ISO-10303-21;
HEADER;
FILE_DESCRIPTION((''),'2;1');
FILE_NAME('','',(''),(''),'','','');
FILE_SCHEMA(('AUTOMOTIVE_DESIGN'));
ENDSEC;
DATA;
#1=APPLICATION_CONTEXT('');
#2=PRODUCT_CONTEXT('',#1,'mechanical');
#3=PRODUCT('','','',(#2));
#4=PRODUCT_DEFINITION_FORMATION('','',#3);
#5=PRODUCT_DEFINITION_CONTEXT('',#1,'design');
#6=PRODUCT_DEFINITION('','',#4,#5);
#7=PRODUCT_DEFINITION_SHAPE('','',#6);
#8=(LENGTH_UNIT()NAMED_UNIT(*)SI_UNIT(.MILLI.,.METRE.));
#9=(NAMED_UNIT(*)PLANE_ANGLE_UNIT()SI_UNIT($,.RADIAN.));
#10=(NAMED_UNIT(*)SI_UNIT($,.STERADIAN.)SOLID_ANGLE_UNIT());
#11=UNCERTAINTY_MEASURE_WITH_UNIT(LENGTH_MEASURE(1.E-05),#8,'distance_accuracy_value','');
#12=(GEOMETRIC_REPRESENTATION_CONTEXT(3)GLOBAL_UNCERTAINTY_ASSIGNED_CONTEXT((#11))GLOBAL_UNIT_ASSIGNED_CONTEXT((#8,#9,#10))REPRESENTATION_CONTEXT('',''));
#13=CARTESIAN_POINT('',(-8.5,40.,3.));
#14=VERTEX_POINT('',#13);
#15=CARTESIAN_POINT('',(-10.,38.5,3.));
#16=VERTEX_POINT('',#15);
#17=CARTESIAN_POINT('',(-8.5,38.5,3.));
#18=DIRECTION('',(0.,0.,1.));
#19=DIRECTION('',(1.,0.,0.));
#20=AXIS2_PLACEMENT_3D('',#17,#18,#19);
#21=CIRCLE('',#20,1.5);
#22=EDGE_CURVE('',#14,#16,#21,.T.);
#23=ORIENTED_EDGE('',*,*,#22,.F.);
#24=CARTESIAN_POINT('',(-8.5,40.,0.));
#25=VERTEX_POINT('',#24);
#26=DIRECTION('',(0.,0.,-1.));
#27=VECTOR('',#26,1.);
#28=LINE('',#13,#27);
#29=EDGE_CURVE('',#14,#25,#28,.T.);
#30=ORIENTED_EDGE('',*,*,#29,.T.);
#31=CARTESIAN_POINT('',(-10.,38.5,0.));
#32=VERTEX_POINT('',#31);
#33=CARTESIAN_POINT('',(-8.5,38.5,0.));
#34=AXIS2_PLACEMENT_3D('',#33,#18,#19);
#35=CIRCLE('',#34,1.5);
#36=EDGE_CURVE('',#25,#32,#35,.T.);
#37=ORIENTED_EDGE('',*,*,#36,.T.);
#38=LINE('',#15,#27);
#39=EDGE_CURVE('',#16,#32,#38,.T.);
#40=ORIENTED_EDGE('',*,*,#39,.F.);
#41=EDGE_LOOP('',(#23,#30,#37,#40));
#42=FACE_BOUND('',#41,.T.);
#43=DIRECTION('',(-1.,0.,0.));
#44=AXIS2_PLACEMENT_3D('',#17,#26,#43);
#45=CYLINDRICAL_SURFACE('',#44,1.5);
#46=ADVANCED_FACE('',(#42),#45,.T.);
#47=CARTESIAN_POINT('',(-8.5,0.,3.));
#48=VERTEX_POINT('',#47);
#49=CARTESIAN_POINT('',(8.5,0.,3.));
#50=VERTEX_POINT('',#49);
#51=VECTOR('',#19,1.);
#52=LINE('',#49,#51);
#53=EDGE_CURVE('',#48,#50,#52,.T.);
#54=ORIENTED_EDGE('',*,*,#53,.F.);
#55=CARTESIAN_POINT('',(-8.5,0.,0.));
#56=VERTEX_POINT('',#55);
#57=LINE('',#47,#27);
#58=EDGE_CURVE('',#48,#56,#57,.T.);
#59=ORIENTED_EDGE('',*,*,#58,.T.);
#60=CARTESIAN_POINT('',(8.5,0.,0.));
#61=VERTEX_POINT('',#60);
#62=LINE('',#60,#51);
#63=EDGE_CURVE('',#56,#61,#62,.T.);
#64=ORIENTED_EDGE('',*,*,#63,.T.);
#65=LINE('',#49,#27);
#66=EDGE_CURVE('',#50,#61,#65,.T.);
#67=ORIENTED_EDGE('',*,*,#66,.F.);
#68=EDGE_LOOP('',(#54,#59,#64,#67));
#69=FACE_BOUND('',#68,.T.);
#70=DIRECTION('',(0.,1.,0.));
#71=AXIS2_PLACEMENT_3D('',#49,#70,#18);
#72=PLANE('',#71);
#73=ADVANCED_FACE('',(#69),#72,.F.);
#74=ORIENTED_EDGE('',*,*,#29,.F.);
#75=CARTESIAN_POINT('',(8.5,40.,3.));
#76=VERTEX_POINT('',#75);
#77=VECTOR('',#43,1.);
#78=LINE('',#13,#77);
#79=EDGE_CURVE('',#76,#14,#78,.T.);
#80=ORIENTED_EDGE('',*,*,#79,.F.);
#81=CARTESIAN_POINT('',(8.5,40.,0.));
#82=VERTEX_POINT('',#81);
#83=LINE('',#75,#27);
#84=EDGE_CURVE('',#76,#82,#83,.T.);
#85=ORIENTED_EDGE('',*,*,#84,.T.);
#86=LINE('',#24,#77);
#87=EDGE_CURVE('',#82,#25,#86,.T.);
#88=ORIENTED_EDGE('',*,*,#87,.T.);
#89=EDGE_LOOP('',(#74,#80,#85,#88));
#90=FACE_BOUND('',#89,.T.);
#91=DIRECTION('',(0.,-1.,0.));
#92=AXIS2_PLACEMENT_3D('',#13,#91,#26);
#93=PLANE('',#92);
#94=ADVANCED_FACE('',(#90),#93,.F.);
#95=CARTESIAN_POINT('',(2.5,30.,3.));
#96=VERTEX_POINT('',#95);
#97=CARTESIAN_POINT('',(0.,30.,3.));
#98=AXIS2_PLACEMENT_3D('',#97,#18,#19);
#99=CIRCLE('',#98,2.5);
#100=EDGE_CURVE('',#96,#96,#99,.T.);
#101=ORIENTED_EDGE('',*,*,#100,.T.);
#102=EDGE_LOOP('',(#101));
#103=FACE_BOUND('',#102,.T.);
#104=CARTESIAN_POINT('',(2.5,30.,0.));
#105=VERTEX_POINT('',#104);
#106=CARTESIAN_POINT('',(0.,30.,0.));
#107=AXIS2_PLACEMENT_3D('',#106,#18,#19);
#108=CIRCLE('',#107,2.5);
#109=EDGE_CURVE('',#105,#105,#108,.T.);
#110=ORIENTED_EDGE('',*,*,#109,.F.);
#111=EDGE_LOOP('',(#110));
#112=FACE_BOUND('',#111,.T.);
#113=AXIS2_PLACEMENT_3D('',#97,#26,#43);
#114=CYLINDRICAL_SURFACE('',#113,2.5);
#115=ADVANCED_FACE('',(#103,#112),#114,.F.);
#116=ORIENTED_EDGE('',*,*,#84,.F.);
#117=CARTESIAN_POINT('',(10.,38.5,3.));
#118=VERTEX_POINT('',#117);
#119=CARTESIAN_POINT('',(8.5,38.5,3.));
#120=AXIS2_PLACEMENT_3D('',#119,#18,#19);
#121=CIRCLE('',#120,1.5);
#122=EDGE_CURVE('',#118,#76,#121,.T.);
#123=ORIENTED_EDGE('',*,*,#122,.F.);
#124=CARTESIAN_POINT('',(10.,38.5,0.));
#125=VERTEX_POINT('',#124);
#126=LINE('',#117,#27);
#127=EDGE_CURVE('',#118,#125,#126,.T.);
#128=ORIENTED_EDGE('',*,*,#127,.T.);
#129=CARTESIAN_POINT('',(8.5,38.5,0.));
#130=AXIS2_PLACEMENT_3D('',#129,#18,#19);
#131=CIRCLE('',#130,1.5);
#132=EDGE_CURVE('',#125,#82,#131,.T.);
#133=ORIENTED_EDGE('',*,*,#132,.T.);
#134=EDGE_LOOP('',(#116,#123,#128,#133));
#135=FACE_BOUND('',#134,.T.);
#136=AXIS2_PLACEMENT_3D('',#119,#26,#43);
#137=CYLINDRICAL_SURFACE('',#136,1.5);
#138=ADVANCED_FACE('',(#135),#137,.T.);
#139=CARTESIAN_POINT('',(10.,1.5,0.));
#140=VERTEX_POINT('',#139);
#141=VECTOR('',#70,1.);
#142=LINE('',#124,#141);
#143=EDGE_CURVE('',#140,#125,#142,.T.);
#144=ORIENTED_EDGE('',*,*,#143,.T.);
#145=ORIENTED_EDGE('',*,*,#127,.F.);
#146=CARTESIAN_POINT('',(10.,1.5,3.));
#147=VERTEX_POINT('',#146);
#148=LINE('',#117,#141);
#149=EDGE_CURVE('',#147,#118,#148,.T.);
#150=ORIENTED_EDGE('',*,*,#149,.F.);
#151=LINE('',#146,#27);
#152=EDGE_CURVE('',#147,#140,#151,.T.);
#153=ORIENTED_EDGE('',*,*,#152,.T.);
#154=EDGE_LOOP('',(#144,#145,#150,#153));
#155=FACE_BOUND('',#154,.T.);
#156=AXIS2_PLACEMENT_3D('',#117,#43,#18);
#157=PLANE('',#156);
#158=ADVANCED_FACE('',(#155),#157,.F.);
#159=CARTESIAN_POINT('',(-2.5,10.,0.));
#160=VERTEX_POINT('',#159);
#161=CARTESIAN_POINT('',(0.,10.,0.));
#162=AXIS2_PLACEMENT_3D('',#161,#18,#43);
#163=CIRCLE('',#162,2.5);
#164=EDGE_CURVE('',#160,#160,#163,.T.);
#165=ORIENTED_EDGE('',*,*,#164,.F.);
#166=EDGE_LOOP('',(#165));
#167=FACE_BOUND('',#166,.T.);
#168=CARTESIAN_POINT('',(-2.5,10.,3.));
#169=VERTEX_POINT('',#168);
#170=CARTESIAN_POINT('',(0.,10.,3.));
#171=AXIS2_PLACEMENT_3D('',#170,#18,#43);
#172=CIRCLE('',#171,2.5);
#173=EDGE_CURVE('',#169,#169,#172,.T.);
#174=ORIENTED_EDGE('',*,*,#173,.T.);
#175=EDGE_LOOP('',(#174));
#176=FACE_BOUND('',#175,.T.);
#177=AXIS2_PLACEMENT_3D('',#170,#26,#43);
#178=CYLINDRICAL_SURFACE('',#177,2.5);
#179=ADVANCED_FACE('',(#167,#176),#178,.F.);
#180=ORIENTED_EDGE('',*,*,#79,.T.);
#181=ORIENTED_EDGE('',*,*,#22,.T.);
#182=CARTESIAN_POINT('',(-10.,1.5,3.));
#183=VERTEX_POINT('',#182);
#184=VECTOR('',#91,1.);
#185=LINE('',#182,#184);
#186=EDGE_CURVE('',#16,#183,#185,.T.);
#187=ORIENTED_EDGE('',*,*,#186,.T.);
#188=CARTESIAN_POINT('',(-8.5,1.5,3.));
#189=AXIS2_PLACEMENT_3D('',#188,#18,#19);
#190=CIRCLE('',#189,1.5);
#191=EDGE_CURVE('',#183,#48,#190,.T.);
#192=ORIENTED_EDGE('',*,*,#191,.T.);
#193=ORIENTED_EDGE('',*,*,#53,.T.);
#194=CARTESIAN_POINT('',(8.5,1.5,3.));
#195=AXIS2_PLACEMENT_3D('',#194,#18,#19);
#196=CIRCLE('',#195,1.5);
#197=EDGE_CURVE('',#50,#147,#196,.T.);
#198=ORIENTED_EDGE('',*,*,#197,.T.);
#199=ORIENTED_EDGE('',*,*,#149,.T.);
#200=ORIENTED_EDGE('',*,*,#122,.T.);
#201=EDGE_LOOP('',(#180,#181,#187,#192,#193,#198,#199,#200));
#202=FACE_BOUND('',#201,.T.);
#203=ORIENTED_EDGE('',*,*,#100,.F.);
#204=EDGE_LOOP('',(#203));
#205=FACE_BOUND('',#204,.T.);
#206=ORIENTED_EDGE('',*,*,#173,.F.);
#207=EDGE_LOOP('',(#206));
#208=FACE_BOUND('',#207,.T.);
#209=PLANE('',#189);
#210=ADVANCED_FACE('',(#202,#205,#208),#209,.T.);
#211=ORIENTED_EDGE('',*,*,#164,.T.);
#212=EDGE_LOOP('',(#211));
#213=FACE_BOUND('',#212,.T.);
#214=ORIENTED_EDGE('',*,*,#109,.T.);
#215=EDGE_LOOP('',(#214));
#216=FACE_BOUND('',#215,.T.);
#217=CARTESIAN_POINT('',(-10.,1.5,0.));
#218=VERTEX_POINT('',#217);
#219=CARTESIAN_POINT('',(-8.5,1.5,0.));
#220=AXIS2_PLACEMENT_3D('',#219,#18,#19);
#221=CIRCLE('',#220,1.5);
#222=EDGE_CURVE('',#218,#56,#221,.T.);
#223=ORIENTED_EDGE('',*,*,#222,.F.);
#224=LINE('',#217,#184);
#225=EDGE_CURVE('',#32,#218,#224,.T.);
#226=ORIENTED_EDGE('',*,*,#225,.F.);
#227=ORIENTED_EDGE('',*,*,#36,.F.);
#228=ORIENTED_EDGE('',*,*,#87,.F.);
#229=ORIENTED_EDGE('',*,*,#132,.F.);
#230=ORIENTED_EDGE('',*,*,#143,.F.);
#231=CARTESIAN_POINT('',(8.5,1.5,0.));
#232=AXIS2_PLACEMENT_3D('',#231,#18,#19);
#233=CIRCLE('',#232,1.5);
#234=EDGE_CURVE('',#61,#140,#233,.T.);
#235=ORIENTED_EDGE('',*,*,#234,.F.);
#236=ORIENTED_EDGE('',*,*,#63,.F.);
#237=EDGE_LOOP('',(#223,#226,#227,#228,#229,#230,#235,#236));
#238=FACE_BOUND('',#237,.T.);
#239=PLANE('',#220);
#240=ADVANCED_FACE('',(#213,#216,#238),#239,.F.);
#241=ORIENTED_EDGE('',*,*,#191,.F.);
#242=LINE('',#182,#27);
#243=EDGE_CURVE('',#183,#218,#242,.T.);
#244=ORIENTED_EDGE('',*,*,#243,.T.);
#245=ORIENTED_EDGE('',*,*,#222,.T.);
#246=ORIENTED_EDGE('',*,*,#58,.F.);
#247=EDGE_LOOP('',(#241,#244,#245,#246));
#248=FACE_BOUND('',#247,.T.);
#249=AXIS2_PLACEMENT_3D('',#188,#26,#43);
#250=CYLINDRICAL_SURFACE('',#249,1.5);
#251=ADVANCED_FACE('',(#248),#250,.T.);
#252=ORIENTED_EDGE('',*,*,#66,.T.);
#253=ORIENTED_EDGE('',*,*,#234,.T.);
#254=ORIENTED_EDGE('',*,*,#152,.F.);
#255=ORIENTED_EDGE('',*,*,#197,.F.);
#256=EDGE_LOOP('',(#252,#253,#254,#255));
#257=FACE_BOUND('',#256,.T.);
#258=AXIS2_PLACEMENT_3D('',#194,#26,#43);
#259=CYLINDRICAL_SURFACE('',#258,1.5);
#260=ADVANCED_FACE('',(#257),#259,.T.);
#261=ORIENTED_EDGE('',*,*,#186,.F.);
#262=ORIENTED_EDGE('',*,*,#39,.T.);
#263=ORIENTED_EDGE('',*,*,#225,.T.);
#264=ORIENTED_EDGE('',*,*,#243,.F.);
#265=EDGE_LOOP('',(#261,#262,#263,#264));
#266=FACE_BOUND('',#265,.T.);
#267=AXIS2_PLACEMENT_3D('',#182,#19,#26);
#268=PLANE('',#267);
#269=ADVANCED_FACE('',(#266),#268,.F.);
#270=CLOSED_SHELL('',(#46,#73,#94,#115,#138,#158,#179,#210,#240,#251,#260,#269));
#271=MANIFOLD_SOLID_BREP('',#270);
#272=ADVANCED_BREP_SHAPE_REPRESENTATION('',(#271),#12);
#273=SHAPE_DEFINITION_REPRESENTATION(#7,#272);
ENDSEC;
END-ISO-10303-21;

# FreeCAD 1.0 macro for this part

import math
import FreeCAD as App
import Part
import Sketcher

V = App.Vector

doc = App.newDocument("Part")
body = doc.addObject("PartDesign::Body", "Body")

sketch1 = doc.addObject("Sketcher::SketchObject", "Sketch")
body.addObject(sketch1)
sketch1.AttachmentSupport = (doc.XY_Plane, [""])
sketch1.MapMode = "FlatFace"
sketch1.addGeometry(Part.LineSegment(V(-8.5, 0, 0), V(8.5, 0, 0)), False)
sketch1.addGeometry(Part.ArcOfCircle(Part.Circle(V(8.5, 1.5, 0), V(0, 0, 1), 1.5), math.radians(-90), math.radians(0)), False)
sketch1.addGeometry(Part.LineSegment(V(10, 1.5, 0), V(10, 38.5, 0)), False)
sketch1.addGeometry(Part.ArcOfCircle(Part.Circle(V(8.5, 38.5, 0), V(0, 0, 1), 1.5), math.radians(0), math.radians(90)), False)
sketch1.addGeometry(Part.LineSegment(V(8.5, 40, 0), V(-8.5, 40, 0)), False)
sketch1.addGeometry(Part.ArcOfCircle(Part.Circle(V(-8.5, 38.5, 0), V(0, 0, 1), 1.5), math.radians(90), math.radians(180)), False)
sketch1.addGeometry(Part.LineSegment(V(-10, 38.5, 0), V(-10, 1.5, 0)), False)
sketch1.addGeometry(Part.ArcOfCircle(Part.Circle(V(-8.5, 1.5, 0), V(0, 0, 1), 1.5), math.radians(180), math.radians(270)), False)
sketch1.addGeometry(Part.Circle(V(0, 10, 0), V(0, 0, 1), 2.5), False)
sketch1.addGeometry(Part.Circle(V(0, 30, 0), V(0, 0, 1), 2.5), False)
sketch1.addConstraint(Sketcher.Constraint("Tangent", 0, 2, 1, 1))
sketch1.addConstraint(Sketcher.Constraint("Tangent", 1, 2, 2, 1))
sketch1.addConstraint(Sketcher.Constraint("Tangent", 2, 2, 3, 1))
sketch1.addConstraint(Sketcher.Constraint("Tangent", 3, 2, 4, 1))
sketch1.addConstraint(Sketcher.Constraint("Tangent", 4, 2, 5, 1))
sketch1.addConstraint(Sketcher.Constraint("Tangent", 5, 2, 6, 1))
sketch1.addConstraint(Sketcher.Constraint("Tangent", 6, 2, 7, 1))
sketch1.addConstraint(Sketcher.Constraint("Tangent", 7, 2, 0, 1))
sketch1.addConstraint(Sketcher.Constraint("Horizontal", 0))
sketch1.addConstraint(Sketcher.Constraint("Vertical", 2))
sketch1.addConstraint(Sketcher.Constraint("Horizontal", 4))
sketch1.addConstraint(Sketcher.Constraint("Vertical", 6))
sketch1.addConstraint(Sketcher.Constraint("Equal", 1, 3))
sketch1.addConstraint(Sketcher.Constraint("Equal", 3, 5))
sketch1.addConstraint(Sketcher.Constraint("Equal", 5, 7))
sketch1.addConstraint(Sketcher.Constraint("Equal", 8, 9))
sketch1.addConstraint(Sketcher.Constraint("Symmetric", 0, 2, 7, 2, -1, 1))
sketch1.addConstraint(Sketcher.Constraint("PointOnObject", 8, 3, -2))
sketch1.addConstraint(Sketcher.Constraint("PointOnObject", 9, 3, -2))
sketch1.addConstraint(Sketcher.Constraint("Diameter", 8, 5.0))
sketch1.addConstraint(Sketcher.Constraint("Radius", 1, 1.5))
sketch1.addConstraint(Sketcher.Constraint("DistanceX", 0, 1, 0, 2, 17.0))
sketch1.addConstraint(Sketcher.Constraint("DistanceY", 2, 1, 2, 2, 37.0))
sketch1.addConstraint(Sketcher.Constraint("DistanceY", -1, 1, 8, 3, 10.0))
sketch1.addConstraint(Sketcher.Constraint("DistanceY", -1, 1, 9, 3, 30.0))
pad1 = doc.addObject("PartDesign::Pad", "Pad")
body.addObject(pad1)
pad1.Profile = sketch1
pad1.Length = 3

doc.recompute()
